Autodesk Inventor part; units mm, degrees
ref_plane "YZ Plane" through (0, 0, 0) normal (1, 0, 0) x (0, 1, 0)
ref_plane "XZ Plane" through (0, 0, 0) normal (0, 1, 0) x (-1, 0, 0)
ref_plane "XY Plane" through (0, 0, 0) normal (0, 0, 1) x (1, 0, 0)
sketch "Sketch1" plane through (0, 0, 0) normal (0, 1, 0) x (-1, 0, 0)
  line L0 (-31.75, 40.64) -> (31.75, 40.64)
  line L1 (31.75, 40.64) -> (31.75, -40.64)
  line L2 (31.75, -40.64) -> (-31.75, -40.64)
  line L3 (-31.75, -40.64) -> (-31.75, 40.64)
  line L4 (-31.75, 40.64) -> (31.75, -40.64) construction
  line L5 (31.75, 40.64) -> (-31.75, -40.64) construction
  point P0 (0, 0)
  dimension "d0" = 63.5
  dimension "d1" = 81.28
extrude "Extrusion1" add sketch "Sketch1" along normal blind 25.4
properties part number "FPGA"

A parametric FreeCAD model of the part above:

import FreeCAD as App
import Part
import Sketcher
Q = App.Units.Quantity


def add_polygon(sketch, points):
    """Adds a closed chain of lines whose ends are joined by coincident constraints."""
    first, n = sketch.GeometryCount, len(points)
    for a, b in zip(points, points[1:] + points[:1]):
        sketch.addGeometry(Part.LineSegment(App.Vector(*a, 0), App.Vector(*b, 0)), False)
    for i in range(n):
        sketch.addConstraint(Sketcher.Constraint("Coincident", first + i, 2, first + (i + 1) % n, 1))

doc = App.newDocument("Part")
body = doc.addObject("PartDesign::Body", "Body")

# Sketch on XZ plane
sketch1 = body.newObject("Sketcher::SketchObject", "Sketch")
sketch1.AttachmentSupport = (doc.getObject("XZ_Plane"), [""])
sketch1.MapMode = "FlatFace"
add_polygon(sketch1, [(-31.75, 40.64), (31.75, 40.64), (31.75, -40.64), (-31.75, -40.64)])  # lines 0-3
sketch1.addConstraint([
    Sketcher.Constraint("Horizontal", 0),
    Sketcher.Constraint("Vertical", 1),
    Sketcher.Constraint("Horizontal", 2),
    Sketcher.Constraint("Vertical", 3),
    Sketcher.Constraint("Symmetric", 0, 2, 2, 2, -1, 1),
    Sketcher.Constraint("DistanceX", 0, 1, 0, 2, Q("2.5 in")),
    Sketcher.Constraint("DistanceY", 1, 2, 1, 1, Q("3.2 in")),
])
pad1 = body.newObject("PartDesign::Pad", "Pad")
pad1.Profile = sketch1
pad1.Length = Q("1 in")
pad1.Reversed = True

doc.recompute()
